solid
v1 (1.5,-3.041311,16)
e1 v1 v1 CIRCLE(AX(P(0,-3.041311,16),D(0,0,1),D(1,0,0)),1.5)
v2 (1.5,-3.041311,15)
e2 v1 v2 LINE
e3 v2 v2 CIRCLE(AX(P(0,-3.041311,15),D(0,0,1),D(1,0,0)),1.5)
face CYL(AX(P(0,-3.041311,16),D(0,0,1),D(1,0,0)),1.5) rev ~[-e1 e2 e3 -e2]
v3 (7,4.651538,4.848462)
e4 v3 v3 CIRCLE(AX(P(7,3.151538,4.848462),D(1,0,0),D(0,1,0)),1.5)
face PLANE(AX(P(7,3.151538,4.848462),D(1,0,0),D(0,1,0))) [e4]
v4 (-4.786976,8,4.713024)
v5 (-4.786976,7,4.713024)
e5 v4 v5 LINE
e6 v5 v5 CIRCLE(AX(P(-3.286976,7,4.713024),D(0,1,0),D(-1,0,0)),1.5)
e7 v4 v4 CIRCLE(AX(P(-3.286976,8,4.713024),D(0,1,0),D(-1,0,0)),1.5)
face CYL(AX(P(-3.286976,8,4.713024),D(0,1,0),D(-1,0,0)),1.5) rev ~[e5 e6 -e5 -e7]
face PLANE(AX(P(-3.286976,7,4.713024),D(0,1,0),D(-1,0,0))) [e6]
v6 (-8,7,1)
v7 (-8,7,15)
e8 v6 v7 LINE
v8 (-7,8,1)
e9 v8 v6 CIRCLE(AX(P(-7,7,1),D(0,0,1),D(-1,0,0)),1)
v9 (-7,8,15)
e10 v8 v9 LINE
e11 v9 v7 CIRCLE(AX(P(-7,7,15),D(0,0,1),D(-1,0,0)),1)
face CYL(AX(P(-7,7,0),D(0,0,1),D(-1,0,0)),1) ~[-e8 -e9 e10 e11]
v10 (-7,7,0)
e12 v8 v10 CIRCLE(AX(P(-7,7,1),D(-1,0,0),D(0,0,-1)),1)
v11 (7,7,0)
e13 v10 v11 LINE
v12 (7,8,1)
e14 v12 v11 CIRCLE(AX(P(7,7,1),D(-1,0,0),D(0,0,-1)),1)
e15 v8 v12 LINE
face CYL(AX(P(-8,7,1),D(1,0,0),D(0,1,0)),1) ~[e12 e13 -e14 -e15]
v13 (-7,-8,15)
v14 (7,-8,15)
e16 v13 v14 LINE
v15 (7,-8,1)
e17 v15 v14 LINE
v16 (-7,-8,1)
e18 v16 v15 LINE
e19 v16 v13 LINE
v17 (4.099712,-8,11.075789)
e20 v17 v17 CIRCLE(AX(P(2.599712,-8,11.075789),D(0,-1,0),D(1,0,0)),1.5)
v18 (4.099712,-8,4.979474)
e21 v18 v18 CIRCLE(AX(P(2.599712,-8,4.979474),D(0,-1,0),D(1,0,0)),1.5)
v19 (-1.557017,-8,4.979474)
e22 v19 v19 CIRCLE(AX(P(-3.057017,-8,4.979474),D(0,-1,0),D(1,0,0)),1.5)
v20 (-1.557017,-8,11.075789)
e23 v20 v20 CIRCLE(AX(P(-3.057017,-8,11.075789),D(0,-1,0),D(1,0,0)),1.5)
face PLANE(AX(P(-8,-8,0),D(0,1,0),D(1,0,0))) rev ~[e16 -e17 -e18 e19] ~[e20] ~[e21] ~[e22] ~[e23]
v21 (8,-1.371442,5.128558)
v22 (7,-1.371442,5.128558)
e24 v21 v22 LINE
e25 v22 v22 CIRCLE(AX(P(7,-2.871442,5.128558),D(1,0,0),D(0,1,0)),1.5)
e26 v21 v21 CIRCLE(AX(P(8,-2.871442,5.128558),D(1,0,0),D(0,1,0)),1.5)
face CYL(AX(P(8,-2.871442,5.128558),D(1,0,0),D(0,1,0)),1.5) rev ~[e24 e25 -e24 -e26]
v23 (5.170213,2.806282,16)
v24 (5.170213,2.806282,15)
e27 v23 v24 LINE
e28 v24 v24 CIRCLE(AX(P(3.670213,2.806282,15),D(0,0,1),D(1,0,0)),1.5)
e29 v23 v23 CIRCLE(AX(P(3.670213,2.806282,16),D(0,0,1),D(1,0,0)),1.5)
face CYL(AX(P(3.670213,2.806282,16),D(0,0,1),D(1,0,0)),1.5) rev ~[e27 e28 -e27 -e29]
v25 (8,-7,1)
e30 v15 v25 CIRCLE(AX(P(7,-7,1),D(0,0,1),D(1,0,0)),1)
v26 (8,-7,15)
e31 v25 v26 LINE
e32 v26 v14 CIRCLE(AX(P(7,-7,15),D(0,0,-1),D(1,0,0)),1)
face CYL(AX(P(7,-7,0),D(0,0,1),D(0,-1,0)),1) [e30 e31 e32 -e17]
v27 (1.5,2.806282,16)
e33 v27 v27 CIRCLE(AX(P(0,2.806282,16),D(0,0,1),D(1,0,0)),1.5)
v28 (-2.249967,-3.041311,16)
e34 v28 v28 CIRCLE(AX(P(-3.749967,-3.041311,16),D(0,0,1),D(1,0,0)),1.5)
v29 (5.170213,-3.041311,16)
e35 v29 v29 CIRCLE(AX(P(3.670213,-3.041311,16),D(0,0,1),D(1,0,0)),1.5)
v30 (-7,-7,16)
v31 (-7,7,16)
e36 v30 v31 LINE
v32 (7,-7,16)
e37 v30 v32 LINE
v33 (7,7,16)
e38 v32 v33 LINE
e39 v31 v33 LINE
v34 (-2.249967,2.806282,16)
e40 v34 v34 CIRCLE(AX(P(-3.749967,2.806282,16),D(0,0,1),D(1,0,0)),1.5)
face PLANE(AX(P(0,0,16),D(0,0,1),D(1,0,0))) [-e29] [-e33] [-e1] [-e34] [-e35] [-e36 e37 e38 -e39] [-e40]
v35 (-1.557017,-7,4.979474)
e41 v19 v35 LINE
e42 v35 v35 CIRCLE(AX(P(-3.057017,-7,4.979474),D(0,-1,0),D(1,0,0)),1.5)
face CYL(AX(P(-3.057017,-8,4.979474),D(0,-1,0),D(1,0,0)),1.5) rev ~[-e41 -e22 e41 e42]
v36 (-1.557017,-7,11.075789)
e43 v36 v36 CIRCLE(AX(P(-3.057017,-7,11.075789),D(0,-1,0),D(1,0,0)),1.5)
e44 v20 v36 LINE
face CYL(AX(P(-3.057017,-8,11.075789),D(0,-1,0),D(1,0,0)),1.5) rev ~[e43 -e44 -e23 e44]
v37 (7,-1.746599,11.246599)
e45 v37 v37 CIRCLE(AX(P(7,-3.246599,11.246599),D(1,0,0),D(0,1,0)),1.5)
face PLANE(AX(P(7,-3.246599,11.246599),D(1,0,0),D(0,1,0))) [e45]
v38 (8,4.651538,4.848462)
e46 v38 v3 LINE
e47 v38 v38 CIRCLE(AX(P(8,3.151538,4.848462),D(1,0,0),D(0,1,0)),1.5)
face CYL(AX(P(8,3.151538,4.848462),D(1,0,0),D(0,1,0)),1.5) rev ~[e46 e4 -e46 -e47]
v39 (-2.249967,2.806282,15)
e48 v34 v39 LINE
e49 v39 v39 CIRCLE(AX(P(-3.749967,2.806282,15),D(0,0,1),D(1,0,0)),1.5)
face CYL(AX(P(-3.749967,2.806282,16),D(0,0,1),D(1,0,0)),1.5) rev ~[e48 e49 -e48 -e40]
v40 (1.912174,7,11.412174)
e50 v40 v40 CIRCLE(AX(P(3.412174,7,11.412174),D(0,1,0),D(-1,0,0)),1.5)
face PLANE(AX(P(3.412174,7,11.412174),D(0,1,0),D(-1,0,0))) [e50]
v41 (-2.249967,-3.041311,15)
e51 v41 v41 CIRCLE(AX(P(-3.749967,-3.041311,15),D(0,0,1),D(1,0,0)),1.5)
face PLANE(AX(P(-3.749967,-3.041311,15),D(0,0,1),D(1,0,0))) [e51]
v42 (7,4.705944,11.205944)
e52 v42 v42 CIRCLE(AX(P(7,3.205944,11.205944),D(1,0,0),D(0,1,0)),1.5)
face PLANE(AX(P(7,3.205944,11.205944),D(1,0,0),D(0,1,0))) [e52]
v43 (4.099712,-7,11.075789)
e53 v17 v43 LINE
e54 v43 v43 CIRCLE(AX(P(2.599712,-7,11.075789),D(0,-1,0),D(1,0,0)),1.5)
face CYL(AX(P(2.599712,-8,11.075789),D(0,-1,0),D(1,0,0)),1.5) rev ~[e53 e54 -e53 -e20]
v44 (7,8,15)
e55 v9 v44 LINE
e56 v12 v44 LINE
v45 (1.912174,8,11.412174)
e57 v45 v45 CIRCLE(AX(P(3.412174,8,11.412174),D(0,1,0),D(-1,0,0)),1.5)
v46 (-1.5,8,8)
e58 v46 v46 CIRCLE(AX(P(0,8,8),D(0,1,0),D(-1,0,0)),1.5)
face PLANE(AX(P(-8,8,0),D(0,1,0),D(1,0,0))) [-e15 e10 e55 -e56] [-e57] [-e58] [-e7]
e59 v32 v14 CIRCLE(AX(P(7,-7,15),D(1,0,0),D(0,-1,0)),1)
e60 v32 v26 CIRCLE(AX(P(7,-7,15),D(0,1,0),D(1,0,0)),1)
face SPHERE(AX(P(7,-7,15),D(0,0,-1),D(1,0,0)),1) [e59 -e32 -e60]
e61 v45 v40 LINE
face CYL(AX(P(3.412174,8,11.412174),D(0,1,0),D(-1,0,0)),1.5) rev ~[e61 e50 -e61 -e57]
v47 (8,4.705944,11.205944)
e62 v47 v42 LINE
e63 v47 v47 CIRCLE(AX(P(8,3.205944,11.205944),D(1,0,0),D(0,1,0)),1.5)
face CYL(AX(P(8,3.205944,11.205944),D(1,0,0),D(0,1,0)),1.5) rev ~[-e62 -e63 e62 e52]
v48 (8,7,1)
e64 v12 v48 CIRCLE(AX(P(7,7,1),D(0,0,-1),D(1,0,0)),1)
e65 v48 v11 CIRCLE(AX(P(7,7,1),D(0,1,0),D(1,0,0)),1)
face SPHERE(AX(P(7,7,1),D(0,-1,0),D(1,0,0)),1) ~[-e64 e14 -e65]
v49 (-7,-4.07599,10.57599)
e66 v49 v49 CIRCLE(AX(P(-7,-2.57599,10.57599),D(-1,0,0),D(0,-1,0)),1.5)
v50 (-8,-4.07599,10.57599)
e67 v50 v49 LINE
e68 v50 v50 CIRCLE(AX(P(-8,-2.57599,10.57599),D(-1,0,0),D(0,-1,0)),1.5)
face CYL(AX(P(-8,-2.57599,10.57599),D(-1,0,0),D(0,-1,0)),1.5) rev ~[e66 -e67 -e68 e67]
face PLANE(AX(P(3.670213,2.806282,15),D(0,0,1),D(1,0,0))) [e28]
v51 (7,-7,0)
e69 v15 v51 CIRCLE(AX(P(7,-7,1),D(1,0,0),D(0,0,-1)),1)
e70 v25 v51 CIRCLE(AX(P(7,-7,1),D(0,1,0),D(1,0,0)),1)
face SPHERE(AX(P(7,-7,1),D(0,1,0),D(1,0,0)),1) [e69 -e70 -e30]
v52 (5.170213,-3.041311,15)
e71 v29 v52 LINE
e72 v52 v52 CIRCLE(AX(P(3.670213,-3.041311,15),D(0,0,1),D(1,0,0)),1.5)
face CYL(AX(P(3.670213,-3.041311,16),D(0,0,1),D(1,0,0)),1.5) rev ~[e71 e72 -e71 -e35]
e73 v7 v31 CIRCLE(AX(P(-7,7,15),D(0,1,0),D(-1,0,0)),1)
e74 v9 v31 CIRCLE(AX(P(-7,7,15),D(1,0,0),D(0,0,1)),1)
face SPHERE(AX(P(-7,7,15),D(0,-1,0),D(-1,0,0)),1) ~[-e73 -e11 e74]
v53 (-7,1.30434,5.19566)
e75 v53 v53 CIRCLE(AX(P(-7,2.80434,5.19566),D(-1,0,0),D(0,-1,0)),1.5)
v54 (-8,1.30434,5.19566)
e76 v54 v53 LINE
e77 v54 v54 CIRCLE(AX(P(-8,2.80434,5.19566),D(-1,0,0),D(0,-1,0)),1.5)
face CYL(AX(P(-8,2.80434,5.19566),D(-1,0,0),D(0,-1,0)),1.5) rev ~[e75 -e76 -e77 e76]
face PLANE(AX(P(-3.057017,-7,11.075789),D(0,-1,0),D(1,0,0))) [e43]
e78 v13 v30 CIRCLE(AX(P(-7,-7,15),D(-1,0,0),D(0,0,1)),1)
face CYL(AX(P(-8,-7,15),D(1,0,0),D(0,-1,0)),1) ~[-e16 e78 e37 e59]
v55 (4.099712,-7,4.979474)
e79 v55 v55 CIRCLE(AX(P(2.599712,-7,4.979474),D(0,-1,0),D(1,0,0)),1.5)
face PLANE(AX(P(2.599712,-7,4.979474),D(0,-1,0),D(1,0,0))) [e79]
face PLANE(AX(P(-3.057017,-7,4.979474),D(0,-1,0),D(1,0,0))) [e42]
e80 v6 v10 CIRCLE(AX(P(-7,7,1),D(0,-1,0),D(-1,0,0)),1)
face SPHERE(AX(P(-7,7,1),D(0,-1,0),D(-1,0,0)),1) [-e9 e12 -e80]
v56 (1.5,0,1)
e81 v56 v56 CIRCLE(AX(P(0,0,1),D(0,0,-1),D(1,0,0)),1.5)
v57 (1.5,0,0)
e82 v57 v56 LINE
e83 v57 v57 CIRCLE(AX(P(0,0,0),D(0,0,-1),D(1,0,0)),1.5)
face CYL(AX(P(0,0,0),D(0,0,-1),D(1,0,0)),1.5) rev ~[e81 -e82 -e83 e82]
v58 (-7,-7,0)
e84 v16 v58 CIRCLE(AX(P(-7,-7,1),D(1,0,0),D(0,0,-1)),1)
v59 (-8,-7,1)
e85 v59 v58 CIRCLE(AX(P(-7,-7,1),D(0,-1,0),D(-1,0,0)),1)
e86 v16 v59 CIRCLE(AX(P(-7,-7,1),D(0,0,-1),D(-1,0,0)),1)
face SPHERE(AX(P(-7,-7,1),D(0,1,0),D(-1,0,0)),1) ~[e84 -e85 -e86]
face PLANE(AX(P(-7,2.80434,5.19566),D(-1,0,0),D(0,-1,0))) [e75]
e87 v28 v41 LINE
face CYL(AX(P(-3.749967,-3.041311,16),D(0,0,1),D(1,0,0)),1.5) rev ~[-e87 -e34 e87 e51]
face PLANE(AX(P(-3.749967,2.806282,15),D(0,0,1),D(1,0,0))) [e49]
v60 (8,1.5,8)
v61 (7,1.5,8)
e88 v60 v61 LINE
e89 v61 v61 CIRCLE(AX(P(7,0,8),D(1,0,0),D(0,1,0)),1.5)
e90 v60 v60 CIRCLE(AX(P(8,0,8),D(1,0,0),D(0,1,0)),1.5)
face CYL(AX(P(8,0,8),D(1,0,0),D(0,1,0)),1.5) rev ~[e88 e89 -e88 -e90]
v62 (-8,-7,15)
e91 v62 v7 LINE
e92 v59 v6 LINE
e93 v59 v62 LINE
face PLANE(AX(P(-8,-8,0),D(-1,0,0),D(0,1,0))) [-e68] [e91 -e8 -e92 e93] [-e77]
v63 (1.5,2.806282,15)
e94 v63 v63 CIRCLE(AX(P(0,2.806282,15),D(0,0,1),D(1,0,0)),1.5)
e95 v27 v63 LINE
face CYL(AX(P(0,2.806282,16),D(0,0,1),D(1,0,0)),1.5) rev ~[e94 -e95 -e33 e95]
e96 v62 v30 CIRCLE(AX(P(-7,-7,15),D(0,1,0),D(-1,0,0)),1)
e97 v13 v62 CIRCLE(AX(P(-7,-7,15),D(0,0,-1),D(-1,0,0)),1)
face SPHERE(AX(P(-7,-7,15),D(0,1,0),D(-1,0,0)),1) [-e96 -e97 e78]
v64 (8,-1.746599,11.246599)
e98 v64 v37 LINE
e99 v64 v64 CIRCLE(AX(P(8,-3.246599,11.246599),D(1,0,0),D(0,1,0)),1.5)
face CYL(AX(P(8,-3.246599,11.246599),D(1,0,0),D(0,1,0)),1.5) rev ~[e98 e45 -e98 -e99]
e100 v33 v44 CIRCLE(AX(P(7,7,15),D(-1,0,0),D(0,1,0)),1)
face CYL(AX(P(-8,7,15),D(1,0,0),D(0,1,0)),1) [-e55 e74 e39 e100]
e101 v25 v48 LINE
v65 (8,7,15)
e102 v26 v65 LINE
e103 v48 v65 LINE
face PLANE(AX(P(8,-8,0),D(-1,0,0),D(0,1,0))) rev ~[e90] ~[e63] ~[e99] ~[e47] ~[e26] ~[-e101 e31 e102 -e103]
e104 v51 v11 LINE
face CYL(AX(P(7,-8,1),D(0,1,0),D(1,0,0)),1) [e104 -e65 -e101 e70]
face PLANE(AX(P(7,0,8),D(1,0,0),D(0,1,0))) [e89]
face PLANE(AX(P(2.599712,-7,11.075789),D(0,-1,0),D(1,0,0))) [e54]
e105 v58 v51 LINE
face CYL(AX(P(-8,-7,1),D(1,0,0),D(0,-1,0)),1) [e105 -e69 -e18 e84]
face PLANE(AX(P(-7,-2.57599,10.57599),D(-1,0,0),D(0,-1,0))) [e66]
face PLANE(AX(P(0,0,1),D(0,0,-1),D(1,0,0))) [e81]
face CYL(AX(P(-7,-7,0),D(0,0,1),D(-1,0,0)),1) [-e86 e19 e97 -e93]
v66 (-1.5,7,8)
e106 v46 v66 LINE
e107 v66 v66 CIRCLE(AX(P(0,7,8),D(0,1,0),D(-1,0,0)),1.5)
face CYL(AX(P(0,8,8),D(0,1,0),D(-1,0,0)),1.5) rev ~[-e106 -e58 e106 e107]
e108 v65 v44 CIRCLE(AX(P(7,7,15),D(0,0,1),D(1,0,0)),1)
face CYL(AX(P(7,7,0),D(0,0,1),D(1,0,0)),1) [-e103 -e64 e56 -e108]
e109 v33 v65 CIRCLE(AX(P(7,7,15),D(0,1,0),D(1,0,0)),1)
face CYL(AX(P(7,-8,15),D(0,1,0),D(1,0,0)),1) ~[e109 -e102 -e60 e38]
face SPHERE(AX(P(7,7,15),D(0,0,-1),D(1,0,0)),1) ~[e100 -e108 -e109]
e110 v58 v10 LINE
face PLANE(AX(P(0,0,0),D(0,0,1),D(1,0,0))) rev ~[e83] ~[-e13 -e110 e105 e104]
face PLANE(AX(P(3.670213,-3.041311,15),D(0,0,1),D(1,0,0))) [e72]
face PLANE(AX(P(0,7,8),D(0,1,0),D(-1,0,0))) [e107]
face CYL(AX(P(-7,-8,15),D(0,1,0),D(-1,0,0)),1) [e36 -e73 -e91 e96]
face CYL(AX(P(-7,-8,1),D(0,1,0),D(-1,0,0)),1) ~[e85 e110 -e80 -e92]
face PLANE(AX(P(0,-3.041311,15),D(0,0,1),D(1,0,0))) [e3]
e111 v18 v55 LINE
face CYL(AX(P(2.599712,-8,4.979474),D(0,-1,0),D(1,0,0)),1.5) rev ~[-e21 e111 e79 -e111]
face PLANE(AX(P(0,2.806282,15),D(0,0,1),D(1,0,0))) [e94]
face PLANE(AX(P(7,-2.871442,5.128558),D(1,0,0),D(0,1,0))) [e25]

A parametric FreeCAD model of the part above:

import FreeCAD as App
import Part
import Sketcher

V = App.Vector
Q = App.Units.Quantity


def add_polygon(sketch, points):
    """Adds a closed chain of lines whose ends are joined by coincident constraints."""
    first, n = sketch.GeometryCount, len(points)
    for a, b in zip(points, points[1:] + points[:1]):
        sketch.addGeometry(Part.LineSegment(App.Vector(*a, 0), App.Vector(*b, 0)), False)
    for i in range(n):
        sketch.addConstraint(Sketcher.Constraint("Coincident", first + i, 2, first + (i + 1) % n, 1))

doc = App.newDocument("Part")
params = doc.addObject("Spreadsheet::Sheet", "Params")
for row, (alias, value) in enumerate([
    ("sketch1_width", "16 mm"),
    ("pad1_length", "16 mm"),
    ("fillet_radius", "1 mm"),
    ("sketch2_diameter", "3 mm"),
    ("pocket1_length", "1 mm"),
    ("sketch3_diameter", "3 mm"),
    ("pocket2_length", "1 mm"),
    ("sketch4_diameter", "3 mm"),
    ("pocket3_length", "1 mm"),
    ("sketch5_diameter", "3 mm"),
    ("pocket4_length", "1 mm"),
    ("sketch6_diameter", "3 mm"),
    ("pocket5_length", "1 mm"),
    ("sketch7_diameter", "3 mm"),
    ("pocket6_length", "1 mm"),
], start=1):
    params.set(f"A{row}", alias)
    params.set(f"B{row}", "=" + value)
    params.setAlias(f"B{row}", alias)

body = doc.addObject("PartDesign::Body", "Body")

# Sketch on XY plane
sketch1 = body.newObject("Sketcher::SketchObject", "Sketch")
sketch1.AttachmentSupport = (doc.getObject("XY_Plane"), [""])
sketch1.MapMode = "FlatFace"
add_polygon(sketch1, [(-8, 8), (-8, -8), (8, -8), (8, 8)])  # lines 0-3
sketch1.addConstraint([
    Sketcher.Constraint("Vertical", 0),
    Sketcher.Constraint("Horizontal", 1),
    Sketcher.Constraint("Vertical", 2),
    Sketcher.Constraint("Horizontal", 3),
    Sketcher.Constraint("Symmetric", 0, 2, 2, 2, -1, 1),
    Sketcher.Constraint("Equal", 3, 0),
    Sketcher.Constraint("DistanceX", 1, 1, 1, 2, Q("16 mm")),
])
sketch1.setExpression("Constraints[10]", "Params.sketch1_width")
pad1 = body.newObject("PartDesign::Pad", "Pad")
pad1.Profile = sketch1
pad1.setExpression("Length", "Params.pad1_length")
doc.recompute()

fillet = body.newObject("PartDesign::Fillet", "Fillet")
fillet.Base = (pad1, ["Edge1"])
fillet.UseAllEdges = True
fillet.setExpression("Radius", "Params.fillet_radius")

# Sketch on XY plane
sketch2 = body.newObject("Sketcher::SketchObject", "Sketch001")
sketch2.AttachmentSupport = (doc.getObject("XY_Plane"), [""])
sketch2.MapMode = "FlatFace"
sketch2.AttachmentOffset = App.Placement(V(0, 0, 16), App.Rotation())
sketch2.addGeometry([
    Part.Circle(V(3.7, -3, 0), V(0, 0, 1), 1.5),  # 0
    Part.Circle(V(3.7, 2.8, 0), V(0, 0, 1), 1.5),  # 1
    Part.Circle(V(0, 2.8, 0), V(0, 0, 1), 1.5),  # 2
    Part.Circle(V(-3.7, 2.8, 0), V(0, 0, 1), 1.5),  # 3
    Part.Circle(V(-3.7, -3, 0), V(0, 0, 1), 1.5),  # 4
    Part.Circle(V(0, -3, 0), V(0, 0, 1), 1.5),  # 5
], False)
sketch2.addConstraint([
    Sketcher.Constraint("Equal", 0, 1),
    Sketcher.Constraint("Equal", 1, 2),
    Sketcher.Constraint("Equal", 2, 3),
    Sketcher.Constraint("Equal", 3, 4),
    Sketcher.Constraint("Equal", 4, 5),
    Sketcher.Constraint("PointOnObject", 2, 3, -2),
    Sketcher.Constraint("PointOnObject", 5, 3, -2),
    Sketcher.Constraint("Horizontal", 1, 3, 2, 3),
    Sketcher.Constraint("Horizontal", 2, 3, 3, 3),
    Sketcher.Constraint("Horizontal", 0, 3, 4, 3),
    Sketcher.Constraint("Horizontal", 4, 3, 5, 3),
    Sketcher.Constraint("Vertical", 0, 3, 1, 3),
    Sketcher.Constraint("Vertical", 3, 3, 4, 3),
    Sketcher.Constraint("Diameter", 0, Q("3 mm")),
    Sketcher.Constraint("DistanceY", 0, 3, -1, 1, Q("3.041311 mm")),
    Sketcher.Constraint("DistanceY", -1, 1, 1, 3, Q("2.806282 mm")),
    Sketcher.Constraint("DistanceX", 3, 3, 1, 3, Q("7.42018 mm")),
    Sketcher.Constraint("DistanceX", -1, 1, 0, 3, Q("3.670213 mm")),
])
sketch2.setExpression("Constraints[13]", "Params.sketch2_diameter")
pocket1 = body.newObject("PartDesign::Pocket", "Pocket")
pocket1.Profile = sketch2
pocket1.setExpression("Length", "Params.pocket1_length")

# Sketch on XY plane
sketch3 = body.newObject("Sketcher::SketchObject", "Sketch002")
sketch3.AttachmentSupport = (doc.getObject("XY_Plane"), [""])
sketch3.MapMode = "FlatFace"
sketch3.addGeometry(Part.Circle(V(0, 0, 0), V(0, 0, 1), 1.5), False)
sketch3.addConstraint([
    Sketcher.Constraint("Coincident", 0, 3, -1, 1),
    Sketcher.Constraint("Diameter", 0, Q("3 mm")),
])
sketch3.setExpression("Constraints[1]", "Params.sketch3_diameter")
pocket2 = body.newObject("PartDesign::Pocket", "Pocket001")
pocket2.Profile = sketch3
pocket2.setExpression("Length", "Params.pocket2_length")
pocket2.Reversed = True

# Sketch on XZ plane
sketch4 = body.newObject("Sketcher::SketchObject", "Sketch003")
sketch4.AttachmentSupport = (doc.getObject("XZ_Plane"), [""])
sketch4.MapMode = "FlatFace"
sketch4.AttachmentOffset = App.Placement(V(0, 0, 8), App.Rotation())
sketch4.addGeometry([
    Part.Circle(V(-3.1, 5, 0), V(0, 0, 1), 1.5),
    Part.Circle(V(2.6, 5, 0), V(0, 0, 1), 1.5),
    Part.Circle(V(-3.1, 11.1, 0), V(0, 0, 1), 1.5),
    Part.Circle(V(2.6, 11.1, 0), V(0, 0, 1), 1.5),
], False)
sketch4.addConstraint([
    Sketcher.Constraint("Equal", 0, 1),
    Sketcher.Constraint("Equal", 1, 2),
    Sketcher.Constraint("Equal", 2, 3),
    Sketcher.Constraint("Horizontal", 0, 3, 1, 3),
    Sketcher.Constraint("Horizontal", 2, 3, 3, 3),
    Sketcher.Constraint("Vertical", 0, 3, 2, 3),
    Sketcher.Constraint("Vertical", 1, 3, 3, 3),
    Sketcher.Constraint("Diameter", 0, Q("3 mm")),
    Sketcher.Constraint("DistanceX", -1, 1, 1, 3, Q("2.599712 mm")),
    Sketcher.Constraint("DistanceY", -1, 1, 2, 3, Q("11.075789 mm")),
    Sketcher.Constraint("DistanceX", 0, 3, 1, 3, Q("5.656729 mm")),
    Sketcher.Constraint("DistanceY", -1, 1, 0, 3, Q("4.979474 mm")),
])
sketch4.setExpression("Constraints[7]", "Params.sketch4_diameter")
pocket3 = body.newObject("PartDesign::Pocket", "Pocket002")
pocket3.Profile = sketch4
pocket3.setExpression("Length", "Params.pocket3_length")

# Sketch on YZ plane
sketch5 = body.newObject("Sketcher::SketchObject", "Sketch004")
sketch5.AttachmentSupport = (doc.getObject("YZ_Plane"), [""])
sketch5.MapMode = "FlatFace"
sketch5.AttachmentOffset = App.Placement(V(0, 0, -8), App.Rotation())
sketch5.addGeometry([
    Part.Circle(V(2.8, 5.2, 0), V(0, 0, 1), 1.5),
    Part.Circle(V(-2.6, 10.6, 0), V(0, 0, 1), 1.5),
], False)
sketch5.addConstraint([
    Sketcher.Constraint("Equal", 0, 1),
    Sketcher.Constraint("Diameter", 0, Q("3 mm")),
    Sketcher.Constraint("DistanceX", -1, 1, 0, 3, Q("2.80434 mm")),
    Sketcher.Constraint("DistanceY", -1, 1, 0, 3, Q("5.19566 mm")),
    Sketcher.Constraint("DistanceX", 1, 3, -1, 1, Q("2.57599 mm")),
    Sketcher.Constraint("DistanceY", -1, 1, 1, 3, Q("10.57599 mm")),
])
sketch5.setExpression("Constraints[1]", "Params.sketch5_diameter")
pocket4 = body.newObject("PartDesign::Pocket", "Pocket003")
pocket4.Profile = sketch5
pocket4.setExpression("Length", "Params.pocket4_length")
pocket4.Reversed = True

# Sketch on YZ plane
sketch6 = body.newObject("Sketcher::SketchObject", "Sketch005")
sketch6.AttachmentSupport = (doc.getObject("YZ_Plane"), [""])
sketch6.MapMode = "FlatFace"
sketch6.AttachmentOffset = App.Placement(V(0, 0, 8), App.Rotation())
sketch6.addGeometry([
    Part.Circle(V(0, 8, 0), V(0, 0, 1), 1.5),  # 0
    Part.Circle(V(3.2, 4.8, 0), V(0, 0, 1), 1.5),  # 1
    Part.Circle(V(-3.2, 11.2, 0), V(0, 0, 1), 1.5),  # 2
    Part.Circle(V(-2.9, 5.1, 0), V(0, 0, 1), 1.5),  # 3
    Part.Circle(V(3.2, 11.2, 0), V(0, 0, 1), 1.5),  # 4
], False)
sketch6.addConstraint([
    Sketcher.Constraint("Equal", 0, 1),
    Sketcher.Constraint("Equal", 1, 2),
    Sketcher.Constraint("Equal", 2, 3),
    Sketcher.Constraint("Equal", 3, 4),
    Sketcher.Constraint("PointOnObject", 0, 3, -2),
    Sketcher.Constraint("Diameter", 0, Q("3 mm")),
    Sketcher.Constraint("DistanceY", -1, 1, 0, 3, Q("8 mm")),
    Sketcher.Constraint("DistanceX", 2, 3, -1, 1, Q("3.246599 mm")),
    Sketcher.Constraint("DistanceY", -1, 1, 2, 3, Q("11.246599 mm")),
    Sketcher.Constraint("DistanceX", -1, 1, 1, 3, Q("3.151538 mm")),
    Sketcher.Constraint("DistanceY", -1, 1, 1, 3, Q("4.848462 mm")),
    Sketcher.Constraint("DistanceX", 3, 3, -1, 1, Q("2.871442 mm")),
    Sketcher.Constraint("DistanceY", 3, 3, 0, 3, Q("2.871442 mm")),
    Sketcher.Constraint("DistanceX", -1, 1, 4, 3, Q("3.205944 mm")),
    Sketcher.Constraint("DistanceY", -1, 1, 4, 3, Q("11.205944 mm")),
])
sketch6.setExpression("Constraints[5]", "Params.sketch6_diameter")
pocket5 = body.newObject("PartDesign::Pocket", "Pocket004")
pocket5.Profile = sketch6
pocket5.setExpression("Length", "Params.pocket5_length")

# Sketch on XZ plane
sketch7 = body.newObject("Sketcher::SketchObject", "Sketch006")
sketch7.AttachmentSupport = (doc.getObject("XZ_Plane"), [""])
sketch7.MapMode = "FlatFace"
sketch7.AttachmentOffset = App.Placement(V(0, 0, -8), App.Rotation())
sketch7.addGeometry([
    Part.Circle(V(3.4, 11.4, 0), V(0, 0, 1), 1.5),
    Part.Circle(V(-3.3, 4.7, 0), V(0, 0, 1), 1.5),
    Part.Circle(V(0, 8, 0), V(0, 0, 1), 1.5),
], False)
sketch7.addConstraint([
    Sketcher.Constraint("Equal", 0, 1),
    Sketcher.Constraint("Equal", 1, 2),
    Sketcher.Constraint("PointOnObject", 2, 3, -2),
    Sketcher.Constraint("Diameter", 0, Q("3 mm")),
    Sketcher.Constraint("DistanceY", -1, 1, 2, 3, Q("8 mm")),
    Sketcher.Constraint("DistanceX", 1, 3, 0, 3, Q("6.69915 mm")),
    Sketcher.Constraint("DistanceY", 1, 3, 0, 3, Q("6.69915 mm")),
    Sketcher.Constraint("DistanceX", -1, 1, 0, 3, Q("3.412174 mm")),
    Sketcher.Constraint("DistanceY", -1, 1, 0, 3, Q("11.412174 mm")),
])
sketch7.setExpression("Constraints[3]", "Params.sketch7_diameter")
pocket6 = body.newObject("PartDesign::Pocket", "Pocket005")
pocket6.Profile = sketch7
pocket6.setExpression("Length", "Params.pocket6_length")
pocket6.Reversed = True

doc.recompute()
